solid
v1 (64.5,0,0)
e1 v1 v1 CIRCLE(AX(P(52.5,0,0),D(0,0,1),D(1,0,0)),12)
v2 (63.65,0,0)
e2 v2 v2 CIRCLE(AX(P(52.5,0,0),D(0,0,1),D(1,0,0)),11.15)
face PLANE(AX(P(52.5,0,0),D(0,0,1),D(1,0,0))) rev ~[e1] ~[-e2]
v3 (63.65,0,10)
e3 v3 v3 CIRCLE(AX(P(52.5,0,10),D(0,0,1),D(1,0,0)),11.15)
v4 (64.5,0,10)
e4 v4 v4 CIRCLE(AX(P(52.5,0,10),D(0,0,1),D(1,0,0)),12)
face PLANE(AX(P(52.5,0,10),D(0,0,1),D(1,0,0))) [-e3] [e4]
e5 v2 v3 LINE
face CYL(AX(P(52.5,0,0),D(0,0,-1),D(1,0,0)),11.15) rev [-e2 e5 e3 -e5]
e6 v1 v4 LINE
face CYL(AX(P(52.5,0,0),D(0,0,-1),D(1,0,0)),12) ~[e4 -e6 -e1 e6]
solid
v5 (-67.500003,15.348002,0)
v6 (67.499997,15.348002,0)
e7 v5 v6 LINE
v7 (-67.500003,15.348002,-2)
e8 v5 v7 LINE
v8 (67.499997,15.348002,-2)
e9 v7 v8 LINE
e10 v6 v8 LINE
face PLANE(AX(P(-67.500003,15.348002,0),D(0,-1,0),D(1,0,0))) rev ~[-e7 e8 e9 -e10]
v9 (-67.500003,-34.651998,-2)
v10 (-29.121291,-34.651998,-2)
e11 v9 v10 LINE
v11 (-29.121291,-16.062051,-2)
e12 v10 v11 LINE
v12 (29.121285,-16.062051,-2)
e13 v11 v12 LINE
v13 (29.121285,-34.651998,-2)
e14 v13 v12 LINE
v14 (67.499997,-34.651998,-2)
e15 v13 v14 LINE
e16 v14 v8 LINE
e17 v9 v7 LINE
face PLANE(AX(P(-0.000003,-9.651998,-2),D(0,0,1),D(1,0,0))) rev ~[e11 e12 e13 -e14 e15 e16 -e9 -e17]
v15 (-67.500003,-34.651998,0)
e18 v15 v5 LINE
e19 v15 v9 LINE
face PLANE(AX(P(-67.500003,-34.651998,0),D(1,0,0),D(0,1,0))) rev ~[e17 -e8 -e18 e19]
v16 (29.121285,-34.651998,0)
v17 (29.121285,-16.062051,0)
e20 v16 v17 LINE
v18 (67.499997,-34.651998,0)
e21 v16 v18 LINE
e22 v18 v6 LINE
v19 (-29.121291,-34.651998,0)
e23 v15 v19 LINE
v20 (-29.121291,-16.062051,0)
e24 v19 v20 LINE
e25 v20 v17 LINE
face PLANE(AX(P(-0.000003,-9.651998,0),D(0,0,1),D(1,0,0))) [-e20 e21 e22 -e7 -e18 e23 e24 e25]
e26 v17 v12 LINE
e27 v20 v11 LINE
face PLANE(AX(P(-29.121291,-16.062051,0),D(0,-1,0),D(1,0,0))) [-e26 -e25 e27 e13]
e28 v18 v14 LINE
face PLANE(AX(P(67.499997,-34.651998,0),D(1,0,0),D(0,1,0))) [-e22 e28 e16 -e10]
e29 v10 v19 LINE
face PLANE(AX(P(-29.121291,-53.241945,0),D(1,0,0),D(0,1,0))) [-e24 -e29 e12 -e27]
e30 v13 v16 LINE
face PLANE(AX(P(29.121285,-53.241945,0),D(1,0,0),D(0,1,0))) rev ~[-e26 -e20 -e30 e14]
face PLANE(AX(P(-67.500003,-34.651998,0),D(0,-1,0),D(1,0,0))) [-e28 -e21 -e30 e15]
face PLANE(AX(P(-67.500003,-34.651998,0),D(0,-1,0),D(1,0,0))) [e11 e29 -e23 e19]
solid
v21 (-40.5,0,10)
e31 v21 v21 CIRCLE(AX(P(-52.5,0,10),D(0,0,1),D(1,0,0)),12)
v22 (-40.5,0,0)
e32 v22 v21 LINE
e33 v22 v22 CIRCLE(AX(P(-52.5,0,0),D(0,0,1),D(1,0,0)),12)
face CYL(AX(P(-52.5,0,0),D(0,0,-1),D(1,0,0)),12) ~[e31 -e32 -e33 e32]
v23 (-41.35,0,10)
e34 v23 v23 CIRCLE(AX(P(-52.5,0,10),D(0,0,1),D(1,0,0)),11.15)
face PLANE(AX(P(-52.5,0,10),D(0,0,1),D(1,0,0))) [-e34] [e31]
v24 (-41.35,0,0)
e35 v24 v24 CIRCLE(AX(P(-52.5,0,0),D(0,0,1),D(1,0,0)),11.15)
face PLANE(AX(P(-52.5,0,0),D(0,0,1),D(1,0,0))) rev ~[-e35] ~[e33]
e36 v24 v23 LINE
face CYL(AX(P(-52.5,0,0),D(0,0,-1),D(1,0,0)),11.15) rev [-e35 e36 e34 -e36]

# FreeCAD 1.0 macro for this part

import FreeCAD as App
import Part
import Sketcher
from FreeCAD import Vector


def add_polygon(sketch, points):
    """Adds a closed chain of lines whose ends are joined by coincident constraints."""
    first, n = sketch.GeometryCount, len(points)
    for a, b in zip(points, points[1:] + points[:1]):
        sketch.addGeometry(Part.LineSegment(App.Vector(*a, 0), App.Vector(*b, 0)), False)
    for i in range(n):
        sketch.addConstraint(Sketcher.Constraint("Coincident", first + i, 2, first + (i + 1) % n, 1))

doc = App.newDocument("Part")
body = doc.addObject("PartDesign::Body", "Body")
body.AllowCompound = True

# Sketch on XY plane
sketch1 = body.newObject("Sketcher::SketchObject", "Sketch")
sketch1.AttachmentSupport = (doc.getObject("XY_Plane"), [""])
sketch1.MapMode = "FlatFace"
sketch1.addGeometry(Part.Circle(Vector(-52.5, 0, 0), Vector(0, 0, 1), 12), False)
sketch1.addGeometry(Part.Circle(Vector(-52.5, 0, 0), Vector(0, 0, 1), 11.15), False)
sketch1.addGeometry(Part.Circle(Vector(52.5, 0, 0), Vector(0, 0, 1), 12), False)
sketch1.addGeometry(Part.Circle(Vector(52.5, 0, 0), Vector(0, 0, 1), 11.15), False)
sketch1.addConstraint(Sketcher.Constraint("Coincident", 1, 3, 0, 3))
sketch1.addConstraint(Sketcher.Constraint("Coincident", 3, 3, 2, 3))
sketch1.addConstraint(Sketcher.Constraint("Equal", 0, 2))
sketch1.addConstraint(Sketcher.Constraint("Equal", 1, 3))
sketch1.addConstraint(Sketcher.Constraint("Symmetric", 0, 3, 2, 3, -1, 1))
sketch1.addConstraint(Sketcher.Constraint("PointOnObject", 0, 3, -1))
sketch1.addConstraint(Sketcher.Constraint("Diameter", 0, 24.0))
sketch1.addConstraint(Sketcher.Constraint("Diameter", 1, 22.3))
sketch1.addConstraint(Sketcher.Constraint("DistanceX", 0, 3, 2, 3, 105.0))
pad1 = body.newObject("PartDesign::Pad", "Pad")
pad1.Profile = sketch1
pad1.Length = 10
body2 = doc.addObject("PartDesign::Body", "Body001")

# Sketch on XY plane
sketch2 = body2.newObject("Sketcher::SketchObject", "Sketch001")
sketch2.AttachmentSupport = (doc.getObject("XY_Plane001"), [""])
sketch2.MapMode = "FlatFace"
add_polygon(sketch2, [(-67.500003, 15.348002), (-67.500003, -34.651998), (67.499997, -34.651998), (67.499997, 15.348002)])  # lines 0-3
sketch2.addConstraint(Sketcher.Constraint("Vertical", 0))
sketch2.addConstraint(Sketcher.Constraint("Horizontal", 1))
sketch2.addConstraint(Sketcher.Constraint("Vertical", 2))
sketch2.addConstraint(Sketcher.Constraint("Horizontal", 3))
sketch2.addConstraint(Sketcher.Constraint("DistanceX", 1, 1, 1, 2, 135.0))
sketch2.addConstraint(Sketcher.Constraint("DistanceY", 0, 2, 0, 1, 50.0))
sketch2.addConstraint(Sketcher.Constraint("DistanceY", -1, 1, 2, 2, 15.348002))
sketch2.addConstraint(Sketcher.Constraint("DistanceX", 0, 2, -1, 1, 67.500003))
pad2 = body2.newObject("PartDesign::Pad", "Pad001")
pad2.Profile = sketch2
pad2.Length = 2
pad2.Reversed = True

# Sketch on XY plane
sketch3 = body2.newObject("Sketcher::SketchObject", "Sketch002")
sketch3.AttachmentSupport = (doc.getObject("XY_Plane001"), [""])
sketch3.MapMode = "FlatFace"
add_polygon(sketch3, [(-29.121291, -16.062051), (-29.121291, -53.241945), (29.121285, -53.241945), (29.121285, -16.062051)])  # lines 0-3
sketch3.addConstraint(Sketcher.Constraint("Vertical", 0))
sketch3.addConstraint(Sketcher.Constraint("Horizontal", 1))
sketch3.addConstraint(Sketcher.Constraint("Vertical", 2))
sketch3.addConstraint(Sketcher.Constraint("Horizontal", 3))
sketch3.addConstraint(Sketcher.Constraint("DistanceX", 1, 1, 1, 2, 58.242576))
sketch3.addConstraint(Sketcher.Constraint("DistanceY", 0, 2, 0, 1, 37.179895))
sketch3.addConstraint(Sketcher.Constraint("DistanceX", 0, 2, -1, 1, 29.121291))
sketch3.addConstraint(Sketcher.Constraint("DistanceY", 2, 2, -1, 1, 16.062051))
pocket1 = body2.newObject("PartDesign::Pocket", "Pocket")
pocket1.Profile = sketch3
pocket1.Length = 25.4

doc.recompute()
